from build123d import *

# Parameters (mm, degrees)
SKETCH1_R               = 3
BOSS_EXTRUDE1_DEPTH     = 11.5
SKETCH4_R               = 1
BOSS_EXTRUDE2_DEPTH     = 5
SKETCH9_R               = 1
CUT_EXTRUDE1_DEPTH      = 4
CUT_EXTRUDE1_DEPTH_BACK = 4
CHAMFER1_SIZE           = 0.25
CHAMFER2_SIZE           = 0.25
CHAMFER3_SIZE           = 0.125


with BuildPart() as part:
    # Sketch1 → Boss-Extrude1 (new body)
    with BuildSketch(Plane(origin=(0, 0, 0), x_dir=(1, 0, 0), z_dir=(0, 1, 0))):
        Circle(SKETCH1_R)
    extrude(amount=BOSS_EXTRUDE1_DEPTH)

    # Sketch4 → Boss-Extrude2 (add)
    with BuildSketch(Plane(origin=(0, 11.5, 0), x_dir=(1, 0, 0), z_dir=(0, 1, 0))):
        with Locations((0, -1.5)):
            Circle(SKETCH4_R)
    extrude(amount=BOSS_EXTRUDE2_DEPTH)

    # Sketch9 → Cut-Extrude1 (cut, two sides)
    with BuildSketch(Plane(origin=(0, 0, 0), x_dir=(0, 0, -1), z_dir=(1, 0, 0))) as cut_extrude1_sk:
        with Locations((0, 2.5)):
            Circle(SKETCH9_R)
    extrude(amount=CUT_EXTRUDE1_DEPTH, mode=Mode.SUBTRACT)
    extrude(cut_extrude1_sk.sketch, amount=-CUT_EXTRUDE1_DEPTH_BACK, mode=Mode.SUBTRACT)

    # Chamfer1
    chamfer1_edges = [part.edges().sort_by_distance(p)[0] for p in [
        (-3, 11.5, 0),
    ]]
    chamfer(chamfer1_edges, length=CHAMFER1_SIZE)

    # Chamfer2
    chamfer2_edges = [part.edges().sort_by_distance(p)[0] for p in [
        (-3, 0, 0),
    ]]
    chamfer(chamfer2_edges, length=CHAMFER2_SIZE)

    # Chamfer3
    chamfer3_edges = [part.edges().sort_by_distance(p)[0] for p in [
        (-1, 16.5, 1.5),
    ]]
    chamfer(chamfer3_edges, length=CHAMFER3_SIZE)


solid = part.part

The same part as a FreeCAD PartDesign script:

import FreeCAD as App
import Part
import Sketcher
Q = App.Units.Quantity


def edges_at(feature, points):
    """Names of the edges that pass closest to the given points."""
    edges = feature.Shape.Edges
    near = lambda p: min(range(len(edges)), key=lambda i: edges[i].distToShape(Part.Vertex(*p))[0])
    return sorted({f"Edge{near(p) + 1}" for p in points})

doc = App.newDocument("Part")
body = doc.addObject("PartDesign::Body", "Body")

# Sketch on XZ plane
sketch1 = body.newObject("Sketcher::SketchObject", "Sketch")
sketch1.AttachmentSupport = (doc.getObject("XZ_Plane"), [""])
sketch1.MapMode = "FlatFace"
sketch1.addGeometry(Part.Circle(App.Vector(0, 0, 0), App.Vector(0, 0, 1), 3), False)
sketch1.addConstraint([
    Sketcher.Constraint("Coincident", 0, 3, -1, 1),
    Sketcher.Constraint("Diameter", 0, Q("6 mm")),
])
pad1 = body.newObject("PartDesign::Pad", "Pad")
pad1.Profile = sketch1
pad1.Length = 11.5
pad1.Reversed = True

# Sketch on XZ plane
sketch2 = body.newObject("Sketcher::SketchObject", "Sketch001")
sketch2.AttachmentSupport = (doc.getObject("XZ_Plane"), [""])
sketch2.MapMode = "FlatFace"
sketch2.AttachmentOffset = App.Placement(App.Vector(0, 0, -11.5), App.Rotation())
sketch2.addGeometry(Part.Circle(App.Vector(0, 1.5, 0), App.Vector(0, 0, 1), 1), False)
sketch2.addConstraint([
    Sketcher.Constraint("PointOnObject", 0, 3, -2),
    Sketcher.Constraint("Diameter", 0, Q("2 mm")),
    Sketcher.Constraint("DistanceY", -1, 1, 0, 3, Q("1.5 mm")),
])
pad2 = body.newObject("PartDesign::Pad", "Pad001")
pad2.Profile = sketch2
pad2.Length = 5
pad2.Reversed = True

# Sketch on YZ plane
sketch3 = body.newObject("Sketcher::SketchObject", "Sketch002")
sketch3.AttachmentSupport = (doc.getObject("YZ_Plane"), [""])
sketch3.MapMode = "FlatFace"
sketch3.addGeometry(Part.Circle(App.Vector(2.5, 0, 0), App.Vector(0, 0, 1), 1), False)
sketch3.addConstraint([
    Sketcher.Constraint("PointOnObject", 0, 3, -1),
    Sketcher.Constraint("Diameter", 0, Q("2 mm")),
    Sketcher.Constraint("DistanceX", -1, 1, 0, 3, Q("2.5 mm")),
])
pocket1 = body.newObject("PartDesign::Pocket", "Pocket")
pocket1.Profile = sketch3
pocket1.Type = "ThroughAll"
pocket1.Midplane = True
doc.recompute()

chamfer = body.newObject("PartDesign::Chamfer", "Chamfer")
chamfer.Base = (pocket1, edges_at(pocket1, [(-3, 11.5, 0)]))
chamfer.Size = 0.25
doc.recompute()

chamfer2 = body.newObject("PartDesign::Chamfer", "Chamfer001")
chamfer2.Base = (chamfer, edges_at(chamfer, [(-3, 0, 0)]))
chamfer2.Size = 0.25
doc.recompute()

chamfer3 = body.newObject("PartDesign::Chamfer", "Chamfer002")
chamfer3.Base = (chamfer2, edges_at(chamfer2, [(-1, 16.5, 1.5)]))
chamfer3.Size = 0.125

doc.recompute()
